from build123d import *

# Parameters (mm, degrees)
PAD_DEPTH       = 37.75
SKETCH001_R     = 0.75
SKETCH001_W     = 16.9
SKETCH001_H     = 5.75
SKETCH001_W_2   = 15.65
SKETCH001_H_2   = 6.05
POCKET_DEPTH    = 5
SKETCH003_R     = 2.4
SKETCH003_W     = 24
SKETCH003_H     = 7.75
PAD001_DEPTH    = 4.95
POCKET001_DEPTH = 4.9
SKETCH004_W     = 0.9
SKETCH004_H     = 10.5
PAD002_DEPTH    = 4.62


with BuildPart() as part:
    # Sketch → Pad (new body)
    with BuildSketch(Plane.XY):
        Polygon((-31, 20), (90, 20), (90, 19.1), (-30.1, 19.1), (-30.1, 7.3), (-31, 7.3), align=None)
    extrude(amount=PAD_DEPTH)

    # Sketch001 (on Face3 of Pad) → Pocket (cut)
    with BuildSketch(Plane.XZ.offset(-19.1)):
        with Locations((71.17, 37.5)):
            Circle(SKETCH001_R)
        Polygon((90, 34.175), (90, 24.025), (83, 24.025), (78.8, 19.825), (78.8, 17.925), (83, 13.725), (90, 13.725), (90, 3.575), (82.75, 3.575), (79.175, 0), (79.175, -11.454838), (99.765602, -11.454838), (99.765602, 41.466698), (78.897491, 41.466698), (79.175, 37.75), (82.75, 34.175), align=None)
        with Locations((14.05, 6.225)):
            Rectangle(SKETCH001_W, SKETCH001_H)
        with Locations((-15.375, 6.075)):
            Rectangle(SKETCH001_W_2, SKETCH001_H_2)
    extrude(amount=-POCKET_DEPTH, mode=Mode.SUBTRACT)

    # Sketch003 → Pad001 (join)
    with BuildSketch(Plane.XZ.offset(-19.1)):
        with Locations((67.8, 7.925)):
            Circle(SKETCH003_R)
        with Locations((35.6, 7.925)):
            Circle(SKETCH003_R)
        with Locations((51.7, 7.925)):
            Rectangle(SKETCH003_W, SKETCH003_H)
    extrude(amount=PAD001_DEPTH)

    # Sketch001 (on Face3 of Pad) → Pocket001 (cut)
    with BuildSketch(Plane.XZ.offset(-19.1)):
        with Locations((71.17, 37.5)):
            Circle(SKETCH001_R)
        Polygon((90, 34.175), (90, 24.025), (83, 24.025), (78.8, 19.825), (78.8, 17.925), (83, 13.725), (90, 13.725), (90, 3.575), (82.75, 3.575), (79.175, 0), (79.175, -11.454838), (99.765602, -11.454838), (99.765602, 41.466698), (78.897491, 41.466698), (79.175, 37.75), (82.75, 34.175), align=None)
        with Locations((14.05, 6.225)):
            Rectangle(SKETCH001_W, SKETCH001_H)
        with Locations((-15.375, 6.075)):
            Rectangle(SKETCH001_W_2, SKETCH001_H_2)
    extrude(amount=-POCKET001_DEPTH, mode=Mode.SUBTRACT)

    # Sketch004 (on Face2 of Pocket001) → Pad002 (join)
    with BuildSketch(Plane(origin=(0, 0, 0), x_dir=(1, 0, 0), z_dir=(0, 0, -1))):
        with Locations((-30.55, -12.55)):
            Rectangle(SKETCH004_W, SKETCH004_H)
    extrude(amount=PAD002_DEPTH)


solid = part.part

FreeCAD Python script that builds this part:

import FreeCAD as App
import Part
import Sketcher

doc = App.newDocument("Part")
body = doc.addObject("PartDesign::Body", "Body")

sketch1 = body.newObject("Sketcher::SketchObject", "Sketch")
sketch1.AttachmentSupport = (doc.getObject("XY_Plane"), [""])
sketch1.MapMode = "FlatFace"
sketch1.addGeometry(Part.LineSegment(App.Vector(90, 20, 0), App.Vector(-31, 20, 0)), False)
sketch1.addGeometry(Part.LineSegment(App.Vector(-31, 20, 0), App.Vector(-31, 7.3, 0)), False)
sketch1.addGeometry(Part.LineSegment(App.Vector(-31, 7.3, 0), App.Vector(-30.1, 7.3, 0)), False)
sketch1.addGeometry(Part.LineSegment(App.Vector(-30.1, 7.3, 0), App.Vector(-30.1, 19.1, 0)), False)
sketch1.addGeometry(Part.LineSegment(App.Vector(-30.1, 19.1, 0), App.Vector(90, 19.1, 0)), False)
sketch1.addGeometry(Part.LineSegment(App.Vector(90, 19.1, 0), App.Vector(90, 20, 0)), False)
sketch1.addConstraint(Sketcher.Constraint("Coincident", 0, 2, 1, 1))
sketch1.addConstraint(Sketcher.Constraint("Coincident", 1, 2, 2, 1))
sketch1.addConstraint(Sketcher.Constraint("Coincident", 2, 2, 3, 1))
sketch1.addConstraint(Sketcher.Constraint("Coincident", 3, 2, 4, 1))
sketch1.addConstraint(Sketcher.Constraint("Coincident", 4, 2, 5, 1))
sketch1.addConstraint(Sketcher.Constraint("Coincident", 5, 2, 0, 1))
sketch1.addConstraint(Sketcher.Constraint("Horizontal", 0))
sketch1.addConstraint(Sketcher.Constraint("Vertical", 1))
sketch1.addConstraint(Sketcher.Constraint("Horizontal", 2))
sketch1.addConstraint(Sketcher.Constraint("Vertical", 3))
sketch1.addConstraint(Sketcher.Constraint("Horizontal", 4))
sketch1.addConstraint(Sketcher.Constraint("Vertical", 5))
sketch1.addConstraint(Sketcher.Constraint("Equal", 2, 5))
sketch1.addConstraint(Sketcher.Constraint("DistanceX", 0, 2, 0, 1, 121.0))
sketch1.addConstraint(Sketcher.Constraint("DistanceX", 2, 1, 2, 2, 0.9))
sketch1.addConstraint(Sketcher.Constraint("DistanceY", 1, 2, 1, 1, 12.7))
sketch1.addConstraint(Sketcher.Constraint("DistanceX", 0, 2, -1, 1, 31.0))
sketch1.addConstraint(Sketcher.Constraint("DistanceY", -1, 1, 0, 2, 20.0))
pad1 = body.newObject("PartDesign::Pad", "Pad")
pad1.Profile = sketch1
pad1.Length = 37.75

sketch2 = body.newObject("Sketcher::SketchObject", "Sketch001")
sketch2.AttachmentSupport = (doc.getObject("XZ_Plane"), [""])
sketch2.MapMode = "FlatFace"
sketch2.AttachmentOffset = App.Placement(App.Vector(0, 0, -19.1), App.Rotation())
sketch2.addGeometry(Part.Circle(App.Vector(71.17, 37.5, 0), App.Vector(0, 0, 1), 0.75), False)
sketch2.addGeometry(Part.LineSegment(App.Vector(90, 34.175, 0), App.Vector(90, 24.025, 0)), False)
sketch2.addGeometry(Part.LineSegment(App.Vector(90, 24.025, 0), App.Vector(83, 24.025, 0)), False)
sketch2.addGeometry(Part.LineSegment(App.Vector(83, 24.025, 0), App.Vector(78.8, 19.825, 0)), False)
sketch2.addGeometry(Part.LineSegment(App.Vector(78.8, 19.825, 0), App.Vector(78.8, 17.925, 0)), False)
sketch2.addGeometry(Part.LineSegment(App.Vector(78.8, 17.925, 0), App.Vector(83, 13.725, 0)), False)
sketch2.addGeometry(Part.LineSegment(App.Vector(83, 13.725, 0), App.Vector(90, 13.725, 0)), False)
sketch2.addGeometry(Part.LineSegment(App.Vector(90, 13.725, 0), App.Vector(90, 3.575, 0)), False)
sketch2.addGeometry(Part.LineSegment(App.Vector(90, 3.575, 0), App.Vector(82.75, 3.575, 0)), False)
sketch2.addGeometry(Part.LineSegment(App.Vector(82.75, 3.575, 0), App.Vector(79.175, 0, 0)), False)
sketch2.addGeometry(Part.LineSegment(App.Vector(79.175, 0, 0), App.Vector(79.175, -11.454838, 0)), False)
sketch2.addGeometry(Part.LineSegment(App.Vector(79.175, -11.454838, 0), App.Vector(99.765602, -11.454838, 0)), False)
sketch2.addGeometry(Part.LineSegment(App.Vector(99.765602, -11.454838, 0), App.Vector(99.765602, 41.466698, 0)), False)
sketch2.addGeometry(Part.LineSegment(App.Vector(99.765602, 41.466698, 0), App.Vector(78.897491, 41.466698, 0)), False)
sketch2.addGeometry(Part.LineSegment(App.Vector(78.897491, 41.466698, 0), App.Vector(79.175, 37.75, 0)), False)
sketch2.addGeometry(Part.LineSegment(App.Vector(79.175, 37.75, 0), App.Vector(82.75, 34.175, 0)), False)
sketch2.addGeometry(Part.LineSegment(App.Vector(82.75, 34.175, 0), App.Vector(90, 34.175, 0)), False)
sketch2.addGeometry(Part.LineSegment(App.Vector(5.6, 9.1, 0), App.Vector(5.6, 3.35, 0)), False)
sketch2.addGeometry(Part.LineSegment(App.Vector(5.6, 3.35, 0), App.Vector(22.5, 3.35, 0)), False)
sketch2.addGeometry(Part.LineSegment(App.Vector(22.5, 3.35, 0), App.Vector(22.5, 9.1, 0)), False)
sketch2.addGeometry(Part.LineSegment(App.Vector(22.5, 9.1, 0), App.Vector(5.6, 9.1, 0)), False)
sketch2.addGeometry(Part.LineSegment(App.Vector(-23.2, 9.1, 0), App.Vector(-23.2, 3.05, 0)), False)
sketch2.addGeometry(Part.LineSegment(App.Vector(-23.2, 3.05, 0), App.Vector(-7.55, 3.05, 0)), False)
sketch2.addGeometry(Part.LineSegment(App.Vector(-7.55, 3.05, 0), App.Vector(-7.55, 9.1, 0)), False)
sketch2.addGeometry(Part.LineSegment(App.Vector(-7.55, 9.1, 0), App.Vector(-23.2, 9.1, 0)), False)
sketch2.addConstraint(Sketcher.Constraint("Coincident", 1, 2, 2, 1))
sketch2.addConstraint(Sketcher.Constraint("Coincident", 2, 2, 3, 1))
sketch2.addConstraint(Sketcher.Constraint("Coincident", 3, 2, 4, 1))
sketch2.addConstraint(Sketcher.Constraint("Coincident", 4, 2, 5, 1))
sketch2.addConstraint(Sketcher.Constraint("Coincident", 5, 2, 6, 1))
sketch2.addConstraint(Sketcher.Constraint("Coincident", 6, 2, 7, 1))
sketch2.addConstraint(Sketcher.Constraint("Coincident", 7, 2, 8, 1))
sketch2.addConstraint(Sketcher.Constraint("Coincident", 8, 2, 9, 1))
sketch2.addConstraint(Sketcher.Constraint("Coincident", 9, 2, 10, 1))
sketch2.addConstraint(Sketcher.Constraint("Coincident", 10, 2, 11, 1))
sketch2.addConstraint(Sketcher.Constraint("Coincident", 11, 2, 12, 1))
sketch2.addConstraint(Sketcher.Constraint("Coincident", 12, 2, 13, 1))
sketch2.addConstraint(Sketcher.Constraint("Coincident", 13, 2, 14, 1))
sketch2.addConstraint(Sketcher.Constraint("Coincident", 14, 2, 15, 1))
sketch2.addConstraint(Sketcher.Constraint("Coincident", 15, 2, 16, 1))
sketch2.addConstraint(Sketcher.Constraint("Coincident", 16, 2, 1, 1))
sketch2.addConstraint(Sketcher.Constraint("Coincident", 17, 2, 18, 1))
sketch2.addConstraint(Sketcher.Constraint("Coincident", 18, 2, 19, 1))
sketch2.addConstraint(Sketcher.Constraint("Coincident", 19, 2, 20, 1))
sketch2.addConstraint(Sketcher.Constraint("Coincident", 20, 2, 17, 1))
sketch2.addConstraint(Sketcher.Constraint("Coincident", 21, 2, 22, 1))
sketch2.addConstraint(Sketcher.Constraint("Coincident", 22, 2, 23, 1))
sketch2.addConstraint(Sketcher.Constraint("Coincident", 23, 2, 24, 1))
sketch2.addConstraint(Sketcher.Constraint("Coincident", 24, 2, 21, 1))
sketch2.addConstraint(Sketcher.Constraint("Vertical", 1))
sketch2.addConstraint(Sketcher.Constraint("Horizontal", 2))
sketch2.addConstraint(Sketcher.Constraint("Vertical", 4))
sketch2.addConstraint(Sketcher.Constraint("Horizontal", 6))
sketch2.addConstraint(Sketcher.Constraint("Vertical", 7))
sketch2.addConstraint(Sketcher.Constraint("Horizontal", 8))
sketch2.addConstraint(Sketcher.Constraint("Vertical", 10))
sketch2.addConstraint(Sketcher.Constraint("Horizontal", 11))
sketch2.addConstraint(Sketcher.Constraint("Vertical", 12))
sketch2.addConstraint(Sketcher.Constraint("Horizontal", 13))
sketch2.addConstraint(Sketcher.Constraint("Horizontal", 16))
sketch2.addConstraint(Sketcher.Constraint("Vertical", 17))
sketch2.addConstraint(Sketcher.Constraint("Horizontal", 18))
sketch2.addConstraint(Sketcher.Constraint("Vertical", 19))
sketch2.addConstraint(Sketcher.Constraint("Horizontal", 20))
sketch2.addConstraint(Sketcher.Constraint("Vertical", 21))
sketch2.addConstraint(Sketcher.Constraint("Horizontal", 22))
sketch2.addConstraint(Sketcher.Constraint("Vertical", 23))
sketch2.addConstraint(Sketcher.Constraint("Horizontal", 24))
sketch2.addConstraint(Sketcher.Constraint("PointOnObject", 9, 2, -1))
sketch2.addConstraint(Sketcher.Constraint("Perpendicular", 3, 5))
sketch2.addConstraint(Sketcher.Constraint("Perpendicular", 5, 9))
sketch2.addConstraint(Sketcher.Constraint("Perpendicular", 9, 15))
sketch2.addConstraint(Sketcher.Constraint("Horizontal", 20, 2, 23, 2))
sketch2.addConstraint(Sketcher.Constraint("Vertical", 2, 2, 5, 2))
sketch2.addConstraint(Sketcher.Constraint("Vertical", 1, 2, 6, 2))
sketch2.addConstraint(Sketcher.Constraint("Vertical", 10, 2, 14, 2))
sketch2.addConstraint(Sketcher.Constraint("Vertical", 8, 2, 15, 2))
sketch2.addConstraint(Sketcher.Constraint("Equal", 1, 7))
sketch2.addConstraint(Sketcher.Constraint("Equal", 3, 5))
sketch2.addConstraint(Sketcher.Constraint("Diameter", 0, 1.5))
sketch2.addConstraint(Sketcher.Constraint("DistanceX", 2, 2, 2, 1, 7.0))
sketch2.addConstraint(Sketcher.Constraint("DistanceX", 18, 1, 18, 2, 16.9))
sketch2.addConstraint(Sketcher.Constraint("DistanceY", 4, 2, 4, 1, 1.9))
sketch2.addConstraint(Sketcher.Constraint("DistanceX", -1, 1, 1, 2, 90.0))
sketch2.addConstraint(Sketcher.Constraint("DistanceX", 8, 2, 8, 1, 7.25))
sketch2.addConstraint(Sketcher.Constraint("DistanceX", 22, 1, 22, 2, 15.65))
sketch2.addConstraint(Sketcher.Constraint("DistanceY", 1, 2, 1, 1, 10.15))
sketch2.addConstraint(Sketcher.Constraint("DistanceY", 17, 2, 17, 1, 5.75))
sketch2.addConstraint(Sketcher.Constraint("DistanceY", 21, 2, 21, 1, 6.05))
sketch2.addConstraint(Sketcher.Constraint("DistanceY", -1, 1, 0, 3, 37.5))
sketch2.addConstraint(Sketcher.Constraint("DistanceX", -1, 1, 3, 2, 78.8))
sketch2.addConstraint(Sketcher.Constraint("DistanceX", -1, 1, 17, 2, 5.6))
sketch2.addConstraint(Sketcher.Constraint("DistanceY", -1, 1, 19, 2, 9.1))
sketch2.addConstraint(Sketcher.Constraint("DistanceX", 21, 2, -1, 1, 23.2))
sketch2.addConstraint(Sketcher.Constraint("DistanceX", -1, 1, 0, 3, 71.17))
sketch2.addConstraint(Sketcher.Constraint("DistanceY", -1, 1, 14, 2, 37.75))
sketch2.addConstraint(Sketcher.Constraint("DistanceX", 13, 2, 13, 1, 20.868111))
sketch2.addConstraint(Sketcher.Constraint("DistanceX", -1, 1, 11, 2, 99.765602))
sketch2.addConstraint(Sketcher.Constraint("DistanceY", 1, 2, 12, 2, 17.441698))
sketch2.addConstraint(Sketcher.Constraint("DistanceY", 10, 2, 10, 1, 11.454838))
pocket1 = body.newObject("PartDesign::Pocket", "Pocket")
pocket1.Profile = sketch2
pocket1.Length = 5

sketch3 = body.newObject("Sketcher::SketchObject", "Sketch002")
sketch3.AttachmentSupport = (doc.getObject("XZ_Plane"), [""])
sketch3.MapMode = "FlatFace"
sketch3.AttachmentOffset = App.Placement(App.Vector(0, 0, -19.1), App.Rotation())
sketch3.addGeometry(Part.Circle(App.Vector(67.8, 7.925, 0), App.Vector(0, 0, 1), 2.4), False)
sketch3.addGeometry(Part.Circle(App.Vector(35.6, 7.925, 0), App.Vector(0, 0, 1), 2.4), False)
sketch3.addGeometry(Part.LineSegment(App.Vector(39.7, 11.8, 0), App.Vector(39.7, 4.05, 0)), False)
sketch3.addGeometry(Part.LineSegment(App.Vector(39.7, 4.05, 0), App.Vector(63.7, 4.05, 0)), False)
sketch3.addGeometry(Part.LineSegment(App.Vector(63.7, 4.05, 0), App.Vector(63.7, 11.8, 0)), False)
sketch3.addGeometry(Part.LineSegment(App.Vector(63.7, 11.8, 0), App.Vector(39.7, 11.8, 0)), False)
sketch3.addConstraint(Sketcher.Constraint("Coincident", 2, 2, 3, 1))
sketch3.addConstraint(Sketcher.Constraint("Coincident", 3, 2, 4, 1))
sketch3.addConstraint(Sketcher.Constraint("Coincident", 4, 2, 5, 1))
sketch3.addConstraint(Sketcher.Constraint("Coincident", 5, 2, 2, 1))
sketch3.addConstraint(Sketcher.Constraint("Vertical", 2))
sketch3.addConstraint(Sketcher.Constraint("Horizontal", 3))
sketch3.addConstraint(Sketcher.Constraint("Vertical", 4))
sketch3.addConstraint(Sketcher.Constraint("Horizontal", 5))
sketch3.addConstraint(Sketcher.Constraint("Equal", 0, 1))
sketch3.addConstraint(Sketcher.Constraint("Horizontal", 0, 3, 1, 3))
sketch3.addConstraint(Sketcher.Constraint("Diameter", 0, 4.8))
sketch3.addConstraint(Sketcher.Constraint("DistanceX", 3, 1, 3, 2, 24.0))
sketch3.addConstraint(Sketcher.Constraint("DistanceY", 2, 2, 2, 1, 7.75))
sketch3.addConstraint(Sketcher.Constraint("DistanceX", -1, 1, 0, 3, 67.8))
sketch3.addConstraint(Sketcher.Constraint("DistanceX", -1, 1, 1, 3, 35.6))
sketch3.addConstraint(Sketcher.Constraint("DistanceX", -1, 1, 2, 2, 39.7))
sketch3.addConstraint(Sketcher.Constraint("DistanceY", -1, 1, 4, 2, 11.8))
sketch3.addConstraint(Sketcher.Constraint("DistanceY", -1, 1, 0, 3, 7.925))
pad2 = body.newObject("PartDesign::Pad", "Pad001")
pad2.Profile = sketch3
pad2.Length = 4.95

sketch4 = body.newObject("Sketcher::SketchObject", "Sketch003")
sketch4.AttachmentSupport = (doc.getObject("XZ_Plane"), [""])
sketch4.MapMode = "FlatFace"
sketch4.AttachmentOffset = App.Placement(App.Vector(0, 0, -19.1), App.Rotation())
sketch4.addGeometry(Part.Circle(App.Vector(71.17, 37.5, 0), App.Vector(0, 0, 1), 0.75), False)
sketch4.addGeometry(Part.LineSegment(App.Vector(90, 34.175, 0), App.Vector(90, 24.025, 0)), False)
sketch4.addGeometry(Part.LineSegment(App.Vector(90, 24.025, 0), App.Vector(83, 24.025, 0)), False)
sketch4.addGeometry(Part.LineSegment(App.Vector(83, 24.025, 0), App.Vector(78.8, 19.825, 0)), False)
sketch4.addGeometry(Part.LineSegment(App.Vector(78.8, 19.825, 0), App.Vector(78.8, 17.925, 0)), False)
sketch4.addGeometry(Part.LineSegment(App.Vector(78.8, 17.925, 0), App.Vector(83, 13.725, 0)), False)
sketch4.addGeometry(Part.LineSegment(App.Vector(83, 13.725, 0), App.Vector(90, 13.725, 0)), False)
sketch4.addGeometry(Part.LineSegment(App.Vector(90, 13.725, 0), App.Vector(90, 3.575, 0)), False)
sketch4.addGeometry(Part.LineSegment(App.Vector(90, 3.575, 0), App.Vector(82.75, 3.575, 0)), False)
sketch4.addGeometry(Part.LineSegment(App.Vector(82.75, 3.575, 0), App.Vector(79.175, 0, 0)), False)
sketch4.addGeometry(Part.LineSegment(App.Vector(79.175, 0, 0), App.Vector(79.175, -11.454838, 0)), False)
sketch4.addGeometry(Part.LineSegment(App.Vector(79.175, -11.454838, 0), App.Vector(99.765602, -11.454838, 0)), False)
sketch4.addGeometry(Part.LineSegment(App.Vector(99.765602, -11.454838, 0), App.Vector(99.765602, 41.466698, 0)), False)
sketch4.addGeometry(Part.LineSegment(App.Vector(99.765602, 41.466698, 0), App.Vector(78.897491, 41.466698, 0)), False)
sketch4.addGeometry(Part.LineSegment(App.Vector(78.897491, 41.466698, 0), App.Vector(79.175, 37.75, 0)), False)
sketch4.addGeometry(Part.LineSegment(App.Vector(79.175, 37.75, 0), App.Vector(82.75, 34.175, 0)), False)
sketch4.addGeometry(Part.LineSegment(App.Vector(82.75, 34.175, 0), App.Vector(90, 34.175, 0)), False)
sketch4.addGeometry(Part.LineSegment(App.Vector(5.6, 9.1, 0), App.Vector(5.6, 3.35, 0)), False)
sketch4.addGeometry(Part.LineSegment(App.Vector(5.6, 3.35, 0), App.Vector(22.5, 3.35, 0)), False)
sketch4.addGeometry(Part.LineSegment(App.Vector(22.5, 3.35, 0), App.Vector(22.5, 9.1, 0)), False)
sketch4.addGeometry(Part.LineSegment(App.Vector(22.5, 9.1, 0), App.Vector(5.6, 9.1, 0)), False)
sketch4.addGeometry(Part.LineSegment(App.Vector(-23.2, 9.1, 0), App.Vector(-23.2, 3.05, 0)), False)
sketch4.addGeometry(Part.LineSegment(App.Vector(-23.2, 3.05, 0), App.Vector(-7.55, 3.05, 0)), False)
sketch4.addGeometry(Part.LineSegment(App.Vector(-7.55, 3.05, 0), App.Vector(-7.55, 9.1, 0)), False)
sketch4.addGeometry(Part.LineSegment(App.Vector(-7.55, 9.1, 0), App.Vector(-23.2, 9.1, 0)), False)
sketch4.addConstraint(Sketcher.Constraint("Coincident", 1, 2, 2, 1))
sketch4.addConstraint(Sketcher.Constraint("Coincident", 2, 2, 3, 1))
sketch4.addConstraint(Sketcher.Constraint("Coincident", 3, 2, 4, 1))
sketch4.addConstraint(Sketcher.Constraint("Coincident", 4, 2, 5, 1))
sketch4.addConstraint(Sketcher.Constraint("Coincident", 5, 2, 6, 1))
sketch4.addConstraint(Sketcher.Constraint("Coincident", 6, 2, 7, 1))
sketch4.addConstraint(Sketcher.Constraint("Coincident", 7, 2, 8, 1))
sketch4.addConstraint(Sketcher.Constraint("Coincident", 8, 2, 9, 1))
sketch4.addConstraint(Sketcher.Constraint("Coincident", 9, 2, 10, 1))
sketch4.addConstraint(Sketcher.Constraint("Coincident", 10, 2, 11, 1))
sketch4.addConstraint(Sketcher.Constraint("Coincident", 11, 2, 12, 1))
sketch4.addConstraint(Sketcher.Constraint("Coincident", 12, 2, 13, 1))
sketch4.addConstraint(Sketcher.Constraint("Coincident", 13, 2, 14, 1))
sketch4.addConstraint(Sketcher.Constraint("Coincident", 14, 2, 15, 1))
sketch4.addConstraint(Sketcher.Constraint("Coincident", 15, 2, 16, 1))
sketch4.addConstraint(Sketcher.Constraint("Coincident", 16, 2, 1, 1))
sketch4.addConstraint(Sketcher.Constraint("Coincident", 17, 2, 18, 1))
sketch4.addConstraint(Sketcher.Constraint("Coincident", 18, 2, 19, 1))
sketch4.addConstraint(Sketcher.Constraint("Coincident", 19, 2, 20, 1))
sketch4.addConstraint(Sketcher.Constraint("Coincident", 20, 2, 17, 1))
sketch4.addConstraint(Sketcher.Constraint("Coincident", 21, 2, 22, 1))
sketch4.addConstraint(Sketcher.Constraint("Coincident", 22, 2, 23, 1))
sketch4.addConstraint(Sketcher.Constraint("Coincident", 23, 2, 24, 1))
sketch4.addConstraint(Sketcher.Constraint("Coincident", 24, 2, 21, 1))
sketch4.addConstraint(Sketcher.Constraint("Vertical", 1))
sketch4.addConstraint(Sketcher.Constraint("Horizontal", 2))
sketch4.addConstraint(Sketcher.Constraint("Vertical", 4))
sketch4.addConstraint(Sketcher.Constraint("Horizontal", 6))
sketch4.addConstraint(Sketcher.Constraint("Vertical", 7))
sketch4.addConstraint(Sketcher.Constraint("Horizontal", 8))
sketch4.addConstraint(Sketcher.Constraint("Vertical", 10))
sketch4.addConstraint(Sketcher.Constraint("Horizontal", 11))
sketch4.addConstraint(Sketcher.Constraint("Vertical", 12))
sketch4.addConstraint(Sketcher.Constraint("Horizontal", 13))
sketch4.addConstraint(Sketcher.Constraint("Horizontal", 16))
sketch4.addConstraint(Sketcher.Constraint("Vertical", 17))
sketch4.addConstraint(Sketcher.Constraint("Horizontal", 18))
sketch4.addConstraint(Sketcher.Constraint("Vertical", 19))
sketch4.addConstraint(Sketcher.Constraint("Horizontal", 20))
sketch4.addConstraint(Sketcher.Constraint("Vertical", 21))
sketch4.addConstraint(Sketcher.Constraint("Horizontal", 22))
sketch4.addConstraint(Sketcher.Constraint("Vertical", 23))
sketch4.addConstraint(Sketcher.Constraint("Horizontal", 24))
sketch4.addConstraint(Sketcher.Constraint("PointOnObject", 9, 2, -1))
sketch4.addConstraint(Sketcher.Constraint("Perpendicular", 3, 5))
sketch4.addConstraint(Sketcher.Constraint("Perpendicular", 5, 9))
sketch4.addConstraint(Sketcher.Constraint("Perpendicular", 9, 15))
sketch4.addConstraint(Sketcher.Constraint("Horizontal", 20, 2, 23, 2))
sketch4.addConstraint(Sketcher.Constraint("Vertical", 2, 2, 5, 2))
sketch4.addConstraint(Sketcher.Constraint("Vertical", 1, 2, 6, 2))
sketch4.addConstraint(Sketcher.Constraint("Vertical", 10, 2, 14, 2))
sketch4.addConstraint(Sketcher.Constraint("Vertical", 8, 2, 15, 2))
sketch4.addConstraint(Sketcher.Constraint("Equal", 1, 7))
sketch4.addConstraint(Sketcher.Constraint("Equal", 3, 5))
sketch4.addConstraint(Sketcher.Constraint("Diameter", 0, 1.5))
sketch4.addConstraint(Sketcher.Constraint("DistanceX", 2, 2, 2, 1, 7.0))
sketch4.addConstraint(Sketcher.Constraint("DistanceX", 18, 1, 18, 2, 16.9))
sketch4.addConstraint(Sketcher.Constraint("DistanceY", 4, 2, 4, 1, 1.9))
sketch4.addConstraint(Sketcher.Constraint("DistanceX", -1, 1, 1, 2, 90.0))
sketch4.addConstraint(Sketcher.Constraint("DistanceX", 8, 2, 8, 1, 7.25))
sketch4.addConstraint(Sketcher.Constraint("DistanceX", 22, 1, 22, 2, 15.65))
sketch4.addConstraint(Sketcher.Constraint("DistanceY", 1, 2, 1, 1, 10.15))
sketch4.addConstraint(Sketcher.Constraint("DistanceY", 17, 2, 17, 1, 5.75))
sketch4.addConstraint(Sketcher.Constraint("DistanceY", 21, 2, 21, 1, 6.05))
sketch4.addConstraint(Sketcher.Constraint("DistanceY", -1, 1, 0, 3, 37.5))
sketch4.addConstraint(Sketcher.Constraint("DistanceX", -1, 1, 3, 2, 78.8))
sketch4.addConstraint(Sketcher.Constraint("DistanceX", -1, 1, 17, 2, 5.6))
sketch4.addConstraint(Sketcher.Constraint("DistanceY", -1, 1, 19, 2, 9.1))
sketch4.addConstraint(Sketcher.Constraint("DistanceX", 21, 2, -1, 1, 23.2))
sketch4.addConstraint(Sketcher.Constraint("DistanceX", -1, 1, 0, 3, 71.17))
sketch4.addConstraint(Sketcher.Constraint("DistanceY", -1, 1, 14, 2, 37.75))
sketch4.addConstraint(Sketcher.Constraint("DistanceX", 13, 2, 13, 1, 20.868111))
sketch4.addConstraint(Sketcher.Constraint("DistanceX", -1, 1, 11, 2, 99.765602))
sketch4.addConstraint(Sketcher.Constraint("DistanceY", 1, 2, 12, 2, 17.441698))
sketch4.addConstraint(Sketcher.Constraint("DistanceY", 10, 2, 10, 1, 11.454838))
pocket2 = body.newObject("PartDesign::Pocket", "Pocket001")
pocket2.Profile = sketch4
pocket2.Length = 4.9

sketch5 = body.newObject("Sketcher::SketchObject", "Sketch004")
sketch5.AttachmentSupport = (doc.getObject("XY_Plane"), [""])
sketch5.MapMode = "FlatFace"
sketch5.addGeometry(Part.LineSegment(App.Vector(-31, 7.3, 0), App.Vector(-31, 17.8, 0)), False)
sketch5.addGeometry(Part.LineSegment(App.Vector(-31, 17.8, 0), App.Vector(-30.1, 17.8, 0)), False)
sketch5.addGeometry(Part.LineSegment(App.Vector(-30.1, 17.8, 0), App.Vector(-30.1, 7.3, 0)), False)
sketch5.addGeometry(Part.LineSegment(App.Vector(-30.1, 7.3, 0), App.Vector(-31, 7.3, 0)), False)
sketch5.addConstraint(Sketcher.Constraint("Coincident", 0, 2, 1, 1))
sketch5.addConstraint(Sketcher.Constraint("Coincident", 1, 2, 2, 1))
sketch5.addConstraint(Sketcher.Constraint("Coincident", 2, 2, 3, 1))
sketch5.addConstraint(Sketcher.Constraint("Coincident", 3, 2, 0, 1))
sketch5.addConstraint(Sketcher.Constraint("Vertical", 0))
sketch5.addConstraint(Sketcher.Constraint("Horizontal", 1))
sketch5.addConstraint(Sketcher.Constraint("Vertical", 2))
sketch5.addConstraint(Sketcher.Constraint("Horizontal", 3))
sketch5.addConstraint(Sketcher.Constraint("DistanceX", 1, 1, 1, 2, 0.9))
sketch5.addConstraint(Sketcher.Constraint("DistanceY", 0, 1, 0, 2, 10.5))
sketch5.addConstraint(Sketcher.Constraint("DistanceX", 0, 2, -1, 1, 31.0))
sketch5.addConstraint(Sketcher.Constraint("DistanceY", -1, 1, 0, 2, 17.8))
pad3 = body.newObject("PartDesign::Pad", "Pad002")
pad3.Profile = sketch5
pad3.Length = 4.62
pad3.Reversed = True

doc.recompute()
